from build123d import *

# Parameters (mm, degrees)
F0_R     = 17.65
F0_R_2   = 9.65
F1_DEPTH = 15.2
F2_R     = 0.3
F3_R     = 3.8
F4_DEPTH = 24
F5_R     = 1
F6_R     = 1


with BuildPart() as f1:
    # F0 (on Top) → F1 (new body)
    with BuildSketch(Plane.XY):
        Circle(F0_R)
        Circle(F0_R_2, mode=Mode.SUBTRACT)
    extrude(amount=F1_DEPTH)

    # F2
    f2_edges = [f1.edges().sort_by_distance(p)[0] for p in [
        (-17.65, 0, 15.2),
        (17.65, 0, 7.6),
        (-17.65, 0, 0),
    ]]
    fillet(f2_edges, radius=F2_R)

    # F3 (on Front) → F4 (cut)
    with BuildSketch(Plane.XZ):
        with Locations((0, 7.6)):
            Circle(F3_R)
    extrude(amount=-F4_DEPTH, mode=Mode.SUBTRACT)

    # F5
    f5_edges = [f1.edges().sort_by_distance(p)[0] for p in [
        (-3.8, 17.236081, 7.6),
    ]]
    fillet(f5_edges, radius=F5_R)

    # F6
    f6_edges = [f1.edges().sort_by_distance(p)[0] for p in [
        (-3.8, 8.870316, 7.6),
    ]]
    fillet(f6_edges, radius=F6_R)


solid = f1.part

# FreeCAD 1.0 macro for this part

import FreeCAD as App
import Part
import Sketcher


def edges_at(feature, points):
    """Names of the edges that pass closest to the given points."""
    edges = feature.Shape.Edges
    near = lambda p: min(range(len(edges)), key=lambda i: edges[i].distToShape(Part.Vertex(*p))[0])
    return sorted({f"Edge{near(p) + 1}" for p in points})

doc = App.newDocument("Part")
body = doc.addObject("PartDesign::Body", "Body")

# Sketch on XY plane
sketch1 = body.newObject("Sketcher::SketchObject", "Sketch")
sketch1.AttachmentSupport = (doc.getObject("XY_Plane"), [""])
sketch1.MapMode = "FlatFace"
sketch1.addGeometry([
    Part.Circle(App.Vector(0, 0, 0), App.Vector(0, 0, 1), 17.65),
    Part.Circle(App.Vector(0, 0, 0), App.Vector(0, 0, 1), 9.65),
], False)
sketch1.addConstraint([
    Sketcher.Constraint("Coincident", 0, 3, -1, 1),
    Sketcher.Constraint("Coincident", 1, 3, -1, 1),
    Sketcher.Constraint("Diameter", 0, 35.3),
    Sketcher.Constraint("Diameter", 1, 19.3),
])
pad1 = body.newObject("PartDesign::Pad", "Pad")
pad1.Profile = sketch1
pad1.Length = 15.2
doc.recompute()

fillet = body.newObject("PartDesign::Fillet", "Fillet")
fillet.Base = (pad1, edges_at(pad1, [(-17.65, 0, 15.2), (17.65, 0, 7.6), (-17.65, 0, 0)]))
fillet.Radius = 0.3

# Sketch on XZ plane
sketch2 = body.newObject("Sketcher::SketchObject", "Sketch001")
sketch2.AttachmentSupport = (doc.getObject("XZ_Plane"), [""])
sketch2.MapMode = "FlatFace"
sketch2.addGeometry(Part.Circle(App.Vector(0, 7.6, 0), App.Vector(0, 0, 1), 3.8), False)
sketch2.addConstraint([
    Sketcher.Constraint("PointOnObject", 0, 3, -2),
    Sketcher.Constraint("Diameter", 0, 7.6),
    Sketcher.Constraint("DistanceY", -1, 1, 0, 3, 7.6),
])
pocket1 = body.newObject("PartDesign::Pocket", "Pocket")
pocket1.Profile = sketch2
pocket1.Length = 24
doc.recompute()

fillet2 = body.newObject("PartDesign::Fillet", "Fillet001")
fillet2.Base = (pocket1, edges_at(pocket1, [(-3.8, 17.236, 7.6)]))
fillet2.Radius = 1
doc.recompute()

fillet3 = body.newObject("PartDesign::Fillet", "Fillet002")
fillet3.Base = (fillet2, edges_at(fillet2, [(-3.8, 8.87, 7.6)]))
fillet3.Radius = 1

doc.recompute()
